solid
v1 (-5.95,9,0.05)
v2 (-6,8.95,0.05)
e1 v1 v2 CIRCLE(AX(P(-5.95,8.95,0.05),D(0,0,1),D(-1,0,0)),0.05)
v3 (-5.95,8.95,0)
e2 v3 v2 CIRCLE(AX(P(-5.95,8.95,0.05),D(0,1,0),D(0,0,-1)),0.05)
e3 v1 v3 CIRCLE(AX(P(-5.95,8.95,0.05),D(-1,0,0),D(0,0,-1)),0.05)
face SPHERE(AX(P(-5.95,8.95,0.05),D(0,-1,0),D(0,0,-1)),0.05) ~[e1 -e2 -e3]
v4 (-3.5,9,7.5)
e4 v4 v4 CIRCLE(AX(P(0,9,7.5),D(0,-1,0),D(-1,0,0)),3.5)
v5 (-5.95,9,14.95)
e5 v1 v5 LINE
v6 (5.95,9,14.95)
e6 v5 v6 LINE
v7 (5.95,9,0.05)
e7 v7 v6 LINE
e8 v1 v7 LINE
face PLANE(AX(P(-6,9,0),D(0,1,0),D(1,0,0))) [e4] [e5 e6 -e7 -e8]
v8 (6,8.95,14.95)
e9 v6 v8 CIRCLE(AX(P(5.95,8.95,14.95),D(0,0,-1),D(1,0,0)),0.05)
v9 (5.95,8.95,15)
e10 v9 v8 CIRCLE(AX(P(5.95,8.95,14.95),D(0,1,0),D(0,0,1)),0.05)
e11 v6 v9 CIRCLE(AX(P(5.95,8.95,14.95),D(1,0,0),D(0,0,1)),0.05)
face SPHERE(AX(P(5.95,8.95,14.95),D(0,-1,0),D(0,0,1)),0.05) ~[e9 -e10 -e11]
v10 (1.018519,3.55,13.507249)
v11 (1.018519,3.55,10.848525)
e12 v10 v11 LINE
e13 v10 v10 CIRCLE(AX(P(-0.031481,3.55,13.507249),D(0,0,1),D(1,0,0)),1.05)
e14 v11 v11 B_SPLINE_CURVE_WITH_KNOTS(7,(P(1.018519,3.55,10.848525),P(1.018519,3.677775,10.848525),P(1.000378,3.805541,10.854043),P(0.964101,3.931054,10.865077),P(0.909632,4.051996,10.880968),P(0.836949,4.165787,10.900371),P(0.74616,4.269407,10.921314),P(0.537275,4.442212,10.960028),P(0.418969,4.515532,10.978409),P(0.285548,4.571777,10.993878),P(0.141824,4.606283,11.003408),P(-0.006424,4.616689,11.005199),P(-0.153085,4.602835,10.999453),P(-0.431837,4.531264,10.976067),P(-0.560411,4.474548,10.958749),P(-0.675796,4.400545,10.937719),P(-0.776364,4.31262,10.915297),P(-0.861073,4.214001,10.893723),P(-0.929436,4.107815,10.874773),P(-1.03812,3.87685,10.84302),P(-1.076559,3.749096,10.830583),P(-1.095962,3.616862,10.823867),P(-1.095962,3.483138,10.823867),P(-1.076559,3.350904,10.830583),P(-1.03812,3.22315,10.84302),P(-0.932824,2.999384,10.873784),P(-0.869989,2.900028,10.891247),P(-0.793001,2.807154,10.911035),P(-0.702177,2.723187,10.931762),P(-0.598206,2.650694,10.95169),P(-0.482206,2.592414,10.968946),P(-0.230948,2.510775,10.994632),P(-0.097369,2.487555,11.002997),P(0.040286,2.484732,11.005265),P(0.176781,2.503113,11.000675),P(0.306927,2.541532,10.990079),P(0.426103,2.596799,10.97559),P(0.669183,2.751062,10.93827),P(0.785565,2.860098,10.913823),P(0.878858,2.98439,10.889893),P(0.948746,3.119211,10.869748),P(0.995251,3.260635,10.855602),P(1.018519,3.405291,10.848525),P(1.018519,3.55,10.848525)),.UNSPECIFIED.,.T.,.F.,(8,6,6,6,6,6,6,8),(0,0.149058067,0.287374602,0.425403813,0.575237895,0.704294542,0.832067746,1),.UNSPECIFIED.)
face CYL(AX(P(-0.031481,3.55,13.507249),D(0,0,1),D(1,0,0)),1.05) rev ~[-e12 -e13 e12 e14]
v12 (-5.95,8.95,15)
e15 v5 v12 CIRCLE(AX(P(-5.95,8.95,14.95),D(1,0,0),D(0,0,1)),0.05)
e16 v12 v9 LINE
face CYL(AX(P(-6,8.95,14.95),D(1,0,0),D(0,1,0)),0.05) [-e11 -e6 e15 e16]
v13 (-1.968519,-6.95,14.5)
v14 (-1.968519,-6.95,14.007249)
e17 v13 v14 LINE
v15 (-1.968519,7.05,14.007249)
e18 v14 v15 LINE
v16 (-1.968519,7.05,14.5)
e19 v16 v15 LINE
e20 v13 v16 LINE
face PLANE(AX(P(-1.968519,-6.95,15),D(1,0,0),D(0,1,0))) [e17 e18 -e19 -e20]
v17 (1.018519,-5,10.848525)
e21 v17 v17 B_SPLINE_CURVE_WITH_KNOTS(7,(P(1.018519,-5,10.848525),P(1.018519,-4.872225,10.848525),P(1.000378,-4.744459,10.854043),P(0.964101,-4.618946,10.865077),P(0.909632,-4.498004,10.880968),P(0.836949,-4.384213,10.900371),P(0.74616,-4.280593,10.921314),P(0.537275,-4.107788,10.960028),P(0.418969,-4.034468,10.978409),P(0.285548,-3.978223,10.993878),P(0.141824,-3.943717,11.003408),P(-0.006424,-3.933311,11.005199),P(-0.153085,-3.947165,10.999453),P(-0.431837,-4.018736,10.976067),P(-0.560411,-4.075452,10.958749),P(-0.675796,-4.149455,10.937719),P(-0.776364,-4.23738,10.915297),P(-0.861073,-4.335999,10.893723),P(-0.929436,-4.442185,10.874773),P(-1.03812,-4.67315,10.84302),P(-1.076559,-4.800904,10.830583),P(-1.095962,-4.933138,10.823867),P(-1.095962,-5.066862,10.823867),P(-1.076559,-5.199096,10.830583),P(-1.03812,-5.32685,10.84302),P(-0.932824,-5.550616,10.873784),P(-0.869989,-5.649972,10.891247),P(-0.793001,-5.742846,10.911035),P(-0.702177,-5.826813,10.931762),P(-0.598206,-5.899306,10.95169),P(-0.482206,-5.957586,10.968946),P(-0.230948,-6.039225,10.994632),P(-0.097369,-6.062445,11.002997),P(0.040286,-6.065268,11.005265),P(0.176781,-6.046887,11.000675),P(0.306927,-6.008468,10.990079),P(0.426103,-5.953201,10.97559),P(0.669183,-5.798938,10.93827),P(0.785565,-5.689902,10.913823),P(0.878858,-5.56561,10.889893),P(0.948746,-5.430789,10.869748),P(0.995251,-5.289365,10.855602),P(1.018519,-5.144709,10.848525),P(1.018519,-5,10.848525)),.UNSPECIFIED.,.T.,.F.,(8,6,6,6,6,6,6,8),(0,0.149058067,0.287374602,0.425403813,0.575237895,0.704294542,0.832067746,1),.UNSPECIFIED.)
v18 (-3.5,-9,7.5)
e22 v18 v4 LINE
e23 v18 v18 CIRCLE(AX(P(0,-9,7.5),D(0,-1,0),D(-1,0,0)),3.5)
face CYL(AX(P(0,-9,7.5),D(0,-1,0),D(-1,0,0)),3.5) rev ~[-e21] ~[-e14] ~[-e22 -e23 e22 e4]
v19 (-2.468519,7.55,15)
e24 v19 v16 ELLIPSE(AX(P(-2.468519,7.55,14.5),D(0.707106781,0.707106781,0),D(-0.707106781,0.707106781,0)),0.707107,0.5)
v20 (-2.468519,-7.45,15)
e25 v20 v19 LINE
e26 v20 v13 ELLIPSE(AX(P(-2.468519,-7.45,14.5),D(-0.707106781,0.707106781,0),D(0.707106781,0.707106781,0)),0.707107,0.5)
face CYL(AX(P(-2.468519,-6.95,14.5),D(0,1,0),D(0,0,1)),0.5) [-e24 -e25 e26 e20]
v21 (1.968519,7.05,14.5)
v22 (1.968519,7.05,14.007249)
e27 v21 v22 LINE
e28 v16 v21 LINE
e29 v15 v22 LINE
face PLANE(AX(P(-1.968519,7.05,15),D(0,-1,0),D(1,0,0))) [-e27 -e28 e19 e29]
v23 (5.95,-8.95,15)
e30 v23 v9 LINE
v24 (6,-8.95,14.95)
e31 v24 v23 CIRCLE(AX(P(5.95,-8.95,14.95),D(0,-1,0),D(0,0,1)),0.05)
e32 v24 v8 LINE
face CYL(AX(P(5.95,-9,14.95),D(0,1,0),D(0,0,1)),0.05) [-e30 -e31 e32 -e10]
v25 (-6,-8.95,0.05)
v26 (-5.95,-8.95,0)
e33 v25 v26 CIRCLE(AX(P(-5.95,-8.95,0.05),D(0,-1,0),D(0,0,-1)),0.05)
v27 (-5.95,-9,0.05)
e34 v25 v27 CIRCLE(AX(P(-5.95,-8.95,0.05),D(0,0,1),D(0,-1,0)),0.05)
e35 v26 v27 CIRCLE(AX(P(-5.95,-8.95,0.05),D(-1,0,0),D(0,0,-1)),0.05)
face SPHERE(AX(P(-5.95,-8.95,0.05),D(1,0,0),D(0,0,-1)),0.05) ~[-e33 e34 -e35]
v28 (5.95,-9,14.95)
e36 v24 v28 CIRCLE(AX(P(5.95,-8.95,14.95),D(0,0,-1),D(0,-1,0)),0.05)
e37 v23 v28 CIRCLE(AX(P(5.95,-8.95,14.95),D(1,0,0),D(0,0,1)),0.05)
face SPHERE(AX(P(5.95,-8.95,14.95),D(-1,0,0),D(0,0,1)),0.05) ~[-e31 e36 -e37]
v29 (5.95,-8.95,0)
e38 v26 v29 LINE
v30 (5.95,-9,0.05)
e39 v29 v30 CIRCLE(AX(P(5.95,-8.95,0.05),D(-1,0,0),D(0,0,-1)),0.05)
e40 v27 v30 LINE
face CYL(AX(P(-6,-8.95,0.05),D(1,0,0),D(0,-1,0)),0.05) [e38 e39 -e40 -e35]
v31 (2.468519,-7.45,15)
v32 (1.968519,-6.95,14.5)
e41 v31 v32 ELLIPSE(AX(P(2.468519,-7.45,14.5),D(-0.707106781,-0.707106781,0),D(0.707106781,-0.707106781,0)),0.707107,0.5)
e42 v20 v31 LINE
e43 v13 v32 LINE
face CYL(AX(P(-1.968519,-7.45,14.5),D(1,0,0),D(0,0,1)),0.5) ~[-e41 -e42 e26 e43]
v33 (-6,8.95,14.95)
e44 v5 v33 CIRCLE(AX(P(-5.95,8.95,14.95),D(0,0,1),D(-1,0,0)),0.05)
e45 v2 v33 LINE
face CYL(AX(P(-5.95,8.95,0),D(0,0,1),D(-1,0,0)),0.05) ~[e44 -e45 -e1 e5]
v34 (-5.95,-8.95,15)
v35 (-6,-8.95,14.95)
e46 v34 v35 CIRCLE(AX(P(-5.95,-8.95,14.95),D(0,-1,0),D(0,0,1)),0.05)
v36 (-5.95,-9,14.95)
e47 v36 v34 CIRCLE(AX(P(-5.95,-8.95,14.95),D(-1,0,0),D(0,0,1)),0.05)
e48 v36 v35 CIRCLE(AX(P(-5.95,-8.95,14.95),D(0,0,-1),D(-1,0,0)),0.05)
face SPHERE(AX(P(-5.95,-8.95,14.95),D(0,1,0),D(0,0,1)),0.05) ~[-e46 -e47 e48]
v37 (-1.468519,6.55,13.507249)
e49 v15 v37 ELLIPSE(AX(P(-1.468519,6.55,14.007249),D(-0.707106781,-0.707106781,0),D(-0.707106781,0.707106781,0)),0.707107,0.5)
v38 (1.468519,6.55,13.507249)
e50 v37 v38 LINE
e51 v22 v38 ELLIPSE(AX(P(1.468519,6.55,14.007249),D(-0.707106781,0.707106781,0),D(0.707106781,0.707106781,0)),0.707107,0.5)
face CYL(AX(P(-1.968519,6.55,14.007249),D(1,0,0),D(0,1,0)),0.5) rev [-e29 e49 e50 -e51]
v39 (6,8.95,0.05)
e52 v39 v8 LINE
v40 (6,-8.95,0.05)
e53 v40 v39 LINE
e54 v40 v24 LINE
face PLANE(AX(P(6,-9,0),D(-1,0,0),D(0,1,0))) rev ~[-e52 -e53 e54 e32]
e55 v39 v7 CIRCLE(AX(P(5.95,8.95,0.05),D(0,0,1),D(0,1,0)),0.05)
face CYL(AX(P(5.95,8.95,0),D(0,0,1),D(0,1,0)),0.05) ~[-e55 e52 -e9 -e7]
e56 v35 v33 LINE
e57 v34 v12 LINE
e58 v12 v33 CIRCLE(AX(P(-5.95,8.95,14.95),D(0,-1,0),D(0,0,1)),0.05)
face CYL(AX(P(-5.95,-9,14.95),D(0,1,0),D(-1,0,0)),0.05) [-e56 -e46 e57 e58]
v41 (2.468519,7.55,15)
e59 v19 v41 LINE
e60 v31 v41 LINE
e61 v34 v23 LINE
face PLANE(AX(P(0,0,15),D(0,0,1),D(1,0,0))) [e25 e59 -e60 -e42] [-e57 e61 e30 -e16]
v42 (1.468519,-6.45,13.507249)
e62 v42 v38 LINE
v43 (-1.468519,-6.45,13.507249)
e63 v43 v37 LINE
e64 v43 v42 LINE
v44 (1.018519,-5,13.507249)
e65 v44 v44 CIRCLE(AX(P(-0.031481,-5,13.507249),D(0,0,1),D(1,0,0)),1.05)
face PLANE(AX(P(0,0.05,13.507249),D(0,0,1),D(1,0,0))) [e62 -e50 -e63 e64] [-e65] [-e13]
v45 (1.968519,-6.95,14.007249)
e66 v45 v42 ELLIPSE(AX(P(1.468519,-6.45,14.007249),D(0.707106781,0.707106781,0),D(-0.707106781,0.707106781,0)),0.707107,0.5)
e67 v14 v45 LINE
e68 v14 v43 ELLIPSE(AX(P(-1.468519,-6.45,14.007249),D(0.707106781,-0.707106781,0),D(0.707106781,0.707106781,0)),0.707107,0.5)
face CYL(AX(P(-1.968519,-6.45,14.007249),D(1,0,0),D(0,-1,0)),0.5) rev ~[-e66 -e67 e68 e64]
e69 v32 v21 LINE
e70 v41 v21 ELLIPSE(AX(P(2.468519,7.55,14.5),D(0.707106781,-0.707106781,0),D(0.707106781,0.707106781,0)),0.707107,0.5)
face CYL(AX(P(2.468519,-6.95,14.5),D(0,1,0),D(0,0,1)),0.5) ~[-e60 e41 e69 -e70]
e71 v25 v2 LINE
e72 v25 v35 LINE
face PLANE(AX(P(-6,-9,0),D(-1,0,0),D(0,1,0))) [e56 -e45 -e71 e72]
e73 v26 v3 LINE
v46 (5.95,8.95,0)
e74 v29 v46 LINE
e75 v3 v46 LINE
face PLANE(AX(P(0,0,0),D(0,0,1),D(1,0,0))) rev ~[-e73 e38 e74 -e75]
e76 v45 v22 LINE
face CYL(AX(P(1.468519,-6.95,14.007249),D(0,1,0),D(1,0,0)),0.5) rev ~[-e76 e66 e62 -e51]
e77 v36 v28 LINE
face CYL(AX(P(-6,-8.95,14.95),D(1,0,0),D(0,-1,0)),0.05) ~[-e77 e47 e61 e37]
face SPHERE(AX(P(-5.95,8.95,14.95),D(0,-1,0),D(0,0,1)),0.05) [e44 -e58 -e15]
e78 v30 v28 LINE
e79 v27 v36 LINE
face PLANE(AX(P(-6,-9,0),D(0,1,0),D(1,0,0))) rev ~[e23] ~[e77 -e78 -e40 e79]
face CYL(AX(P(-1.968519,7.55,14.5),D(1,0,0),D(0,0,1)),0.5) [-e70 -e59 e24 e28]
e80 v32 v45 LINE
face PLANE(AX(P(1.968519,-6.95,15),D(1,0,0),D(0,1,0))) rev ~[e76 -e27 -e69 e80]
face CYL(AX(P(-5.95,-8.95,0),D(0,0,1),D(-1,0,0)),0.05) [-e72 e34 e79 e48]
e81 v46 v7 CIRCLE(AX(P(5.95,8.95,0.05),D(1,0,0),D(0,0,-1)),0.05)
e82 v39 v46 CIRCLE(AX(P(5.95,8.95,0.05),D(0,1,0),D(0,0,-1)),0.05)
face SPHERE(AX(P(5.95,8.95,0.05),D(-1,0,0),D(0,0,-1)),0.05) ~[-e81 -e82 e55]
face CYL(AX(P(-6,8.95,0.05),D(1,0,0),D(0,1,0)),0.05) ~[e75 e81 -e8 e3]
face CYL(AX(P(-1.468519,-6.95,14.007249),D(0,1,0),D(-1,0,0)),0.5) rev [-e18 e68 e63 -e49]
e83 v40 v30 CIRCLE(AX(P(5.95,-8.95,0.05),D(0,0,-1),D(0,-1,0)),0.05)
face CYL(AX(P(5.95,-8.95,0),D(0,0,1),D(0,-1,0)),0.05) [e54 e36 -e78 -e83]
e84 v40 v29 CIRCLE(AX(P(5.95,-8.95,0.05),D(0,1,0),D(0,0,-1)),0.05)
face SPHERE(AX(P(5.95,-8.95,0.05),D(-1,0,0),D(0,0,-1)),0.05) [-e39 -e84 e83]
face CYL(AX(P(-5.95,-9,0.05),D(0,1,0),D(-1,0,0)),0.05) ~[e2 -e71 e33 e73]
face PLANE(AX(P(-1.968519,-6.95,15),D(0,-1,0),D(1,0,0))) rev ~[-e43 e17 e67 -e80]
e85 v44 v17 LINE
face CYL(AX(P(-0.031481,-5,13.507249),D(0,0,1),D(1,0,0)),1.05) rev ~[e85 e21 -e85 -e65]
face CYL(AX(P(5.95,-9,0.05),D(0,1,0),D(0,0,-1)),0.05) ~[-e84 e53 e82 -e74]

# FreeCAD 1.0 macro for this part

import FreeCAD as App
import Part
import Sketcher
Q = App.Units.Quantity


def edges_at(feature, points):
    """Names of the edges that pass closest to the given points."""
    edges = feature.Shape.Edges
    near = lambda p: min(range(len(edges)), key=lambda i: edges[i].distToShape(Part.Vertex(*p))[0])
    return sorted({f"Edge{near(p) + 1}" for p in points})


def add_polygon(sketch, points):
    """Adds a closed chain of lines whose ends are joined by coincident constraints."""
    first, n = sketch.GeometryCount, len(points)
    for a, b in zip(points, points[1:] + points[:1]):
        sketch.addGeometry(Part.LineSegment(App.Vector(*a, 0), App.Vector(*b, 0)), False)
    for i in range(n):
        sketch.addConstraint(Sketcher.Constraint("Coincident", first + i, 2, first + (i + 1) % n, 1))

doc = App.newDocument("Part")
body = doc.addObject("PartDesign::Body", "Body")

# Sketch on XY plane
sketch1 = body.newObject("Sketcher::SketchObject", "Sketch")
sketch1.AttachmentSupport = (doc.getObject("XY_Plane"), [""])
sketch1.MapMode = "FlatFace"
add_polygon(sketch1, [(-6, 9), (-6, -9), (6, -9), (6, 9)])  # lines 0-3
sketch1.addConstraint([
    Sketcher.Constraint("Vertical", 0),
    Sketcher.Constraint("Horizontal", 1),
    Sketcher.Constraint("Vertical", 2),
    Sketcher.Constraint("Horizontal", 3),
    Sketcher.Constraint("Symmetric", 0, 2, 2, 2, -1, 1),
    Sketcher.Constraint("DistanceX", 1, 1, 1, 2, Q("12 mm")),
    Sketcher.Constraint("DistanceY", 0, 2, 0, 1, Q("18 mm")),
])
pad1 = body.newObject("PartDesign::Pad", "Pad")
pad1.Profile = sketch1
pad1.Length = 15

# Sketch on XZ plane
sketch2 = body.newObject("Sketcher::SketchObject", "Sketch001")
sketch2.AttachmentSupport = (doc.getObject("XZ_Plane"), [""])
sketch2.MapMode = "FlatFace"
sketch2.AttachmentOffset = App.Placement(App.Vector(0, 0, 9), App.Rotation())
sketch2.addGeometry(Part.Circle(App.Vector(0, 7.5, 0), App.Vector(0, 0, 1), 3.5), False)
sketch2.addConstraint([
    Sketcher.Constraint("PointOnObject", 0, 3, -2),
    Sketcher.Constraint("Diameter", 0, Q("7 mm")),
    Sketcher.Constraint("DistanceY", -1, 1, 0, 3, Q("7.5 mm")),
])
pocket1 = body.newObject("PartDesign::Pocket", "Pocket")
pocket1.Profile = sketch2
pocket1.Length = 18

# Sketch on XY plane
sketch3 = body.newObject("Sketcher::SketchObject", "Sketch002")
sketch3.AttachmentSupport = (doc.getObject("XY_Plane"), [""])
sketch3.MapMode = "FlatFace"
sketch3.AttachmentOffset = App.Placement(App.Vector(0, 0, 15), App.Rotation())
add_polygon(sketch3, [(-2, 7), (-2, -7), (2, -7), (2, 7)])  # lines 0-3
sketch3.addConstraint([
    Sketcher.Constraint("Vertical", 0),
    Sketcher.Constraint("Horizontal", 1),
    Sketcher.Constraint("Vertical", 2),
    Sketcher.Constraint("Horizontal", 3),
    Sketcher.Constraint("DistanceY", 0, 2, 0, 1, Q("14 mm")),
    Sketcher.Constraint("DistanceY", 0, 2, -1, 1, Q("6.95 mm")),
    Sketcher.Constraint("DistanceX", 1, 1, 1, 2, Q("3.937037 mm")),
    Sketcher.Constraint("DistanceX", 0, 2, -1, 1, Q("1.968519 mm")),
])
pocket2 = body.newObject("PartDesign::Pocket", "Pocket001")
pocket2.Profile = sketch3
pocket2.Length = 1.492751
doc.recompute()

fillet = body.newObject("PartDesign::Fillet", "Fillet")
fillet.Base = (pocket2, edges_at(pocket2, [
    (-6, 0, 15),
    (0, -9, 15),
    (6, 0, 15),
    (0, -9, 0),
    (-6, 0, 0),
    (0, 9, 0),
    (6, 0, 0),
    (0, 9, 15),
    (6, -9, 7.5),
    (-6, -9, 7.5),
    (-6, 9, 7.5),
    (6, 9, 7.5),
]))
fillet.Radius = 0.05

# Sketch on XY plane
sketch4 = body.newObject("Sketcher::SketchObject", "Sketch003")
sketch4.AttachmentSupport = (doc.getObject("XY_Plane"), [""])
sketch4.MapMode = "FlatFace"
sketch4.AttachmentOffset = App.Placement(App.Vector(0, 0, 13.507249), App.Rotation())
sketch4.addGeometry([
    Part.Circle(App.Vector(0, 3.5, 0), App.Vector(0, 0, 1), 1.1),
    Part.Circle(App.Vector(0, -5, 0), App.Vector(0, 0, 1), 1.1),
], False)
sketch4.addConstraint([
    Sketcher.Constraint("Equal", 0, 1),
    Sketcher.Constraint("Vertical", 0, 3, 1, 3),
    Sketcher.Constraint("Diameter", 0, Q("2.1 mm")),
    Sketcher.Constraint("DistanceY", 1, 3, -1, 1, Q("5 mm")),
    Sketcher.Constraint("DistanceY", -1, 1, 0, 3, Q("3.55 mm")),
    Sketcher.Constraint("DistanceX", 0, 3, -1, 1, Q("0.031481 mm")),
])
pocket3 = body.newObject("PartDesign::Pocket", "Pocket002")
pocket3.Profile = sketch4
pocket3.Length = 3
doc.recompute()

fillet2 = body.newObject("PartDesign::Fillet", "Fillet001")
fillet2.Base = (pocket3, edges_at(pocket3, [
    (-1.969, 0.05, 15),
    (0, -6.95, 15),
    (1.969, 0.05, 15),
    (0, 7.05, 15),
]))
fillet2.Radius = 0.5
doc.recompute()

fillet3 = body.newObject("PartDesign::Fillet", "Fillet002")
fillet3.Base = (fillet2, edges_at(fillet2, [
    (-1.969, 0.05, 13.507),
    (0, 7.05, 13.507),
    (1.969, 0.05, 13.507),
    (0, -6.95, 13.507),
]))
fillet3.Radius = 0.5

doc.recompute()
